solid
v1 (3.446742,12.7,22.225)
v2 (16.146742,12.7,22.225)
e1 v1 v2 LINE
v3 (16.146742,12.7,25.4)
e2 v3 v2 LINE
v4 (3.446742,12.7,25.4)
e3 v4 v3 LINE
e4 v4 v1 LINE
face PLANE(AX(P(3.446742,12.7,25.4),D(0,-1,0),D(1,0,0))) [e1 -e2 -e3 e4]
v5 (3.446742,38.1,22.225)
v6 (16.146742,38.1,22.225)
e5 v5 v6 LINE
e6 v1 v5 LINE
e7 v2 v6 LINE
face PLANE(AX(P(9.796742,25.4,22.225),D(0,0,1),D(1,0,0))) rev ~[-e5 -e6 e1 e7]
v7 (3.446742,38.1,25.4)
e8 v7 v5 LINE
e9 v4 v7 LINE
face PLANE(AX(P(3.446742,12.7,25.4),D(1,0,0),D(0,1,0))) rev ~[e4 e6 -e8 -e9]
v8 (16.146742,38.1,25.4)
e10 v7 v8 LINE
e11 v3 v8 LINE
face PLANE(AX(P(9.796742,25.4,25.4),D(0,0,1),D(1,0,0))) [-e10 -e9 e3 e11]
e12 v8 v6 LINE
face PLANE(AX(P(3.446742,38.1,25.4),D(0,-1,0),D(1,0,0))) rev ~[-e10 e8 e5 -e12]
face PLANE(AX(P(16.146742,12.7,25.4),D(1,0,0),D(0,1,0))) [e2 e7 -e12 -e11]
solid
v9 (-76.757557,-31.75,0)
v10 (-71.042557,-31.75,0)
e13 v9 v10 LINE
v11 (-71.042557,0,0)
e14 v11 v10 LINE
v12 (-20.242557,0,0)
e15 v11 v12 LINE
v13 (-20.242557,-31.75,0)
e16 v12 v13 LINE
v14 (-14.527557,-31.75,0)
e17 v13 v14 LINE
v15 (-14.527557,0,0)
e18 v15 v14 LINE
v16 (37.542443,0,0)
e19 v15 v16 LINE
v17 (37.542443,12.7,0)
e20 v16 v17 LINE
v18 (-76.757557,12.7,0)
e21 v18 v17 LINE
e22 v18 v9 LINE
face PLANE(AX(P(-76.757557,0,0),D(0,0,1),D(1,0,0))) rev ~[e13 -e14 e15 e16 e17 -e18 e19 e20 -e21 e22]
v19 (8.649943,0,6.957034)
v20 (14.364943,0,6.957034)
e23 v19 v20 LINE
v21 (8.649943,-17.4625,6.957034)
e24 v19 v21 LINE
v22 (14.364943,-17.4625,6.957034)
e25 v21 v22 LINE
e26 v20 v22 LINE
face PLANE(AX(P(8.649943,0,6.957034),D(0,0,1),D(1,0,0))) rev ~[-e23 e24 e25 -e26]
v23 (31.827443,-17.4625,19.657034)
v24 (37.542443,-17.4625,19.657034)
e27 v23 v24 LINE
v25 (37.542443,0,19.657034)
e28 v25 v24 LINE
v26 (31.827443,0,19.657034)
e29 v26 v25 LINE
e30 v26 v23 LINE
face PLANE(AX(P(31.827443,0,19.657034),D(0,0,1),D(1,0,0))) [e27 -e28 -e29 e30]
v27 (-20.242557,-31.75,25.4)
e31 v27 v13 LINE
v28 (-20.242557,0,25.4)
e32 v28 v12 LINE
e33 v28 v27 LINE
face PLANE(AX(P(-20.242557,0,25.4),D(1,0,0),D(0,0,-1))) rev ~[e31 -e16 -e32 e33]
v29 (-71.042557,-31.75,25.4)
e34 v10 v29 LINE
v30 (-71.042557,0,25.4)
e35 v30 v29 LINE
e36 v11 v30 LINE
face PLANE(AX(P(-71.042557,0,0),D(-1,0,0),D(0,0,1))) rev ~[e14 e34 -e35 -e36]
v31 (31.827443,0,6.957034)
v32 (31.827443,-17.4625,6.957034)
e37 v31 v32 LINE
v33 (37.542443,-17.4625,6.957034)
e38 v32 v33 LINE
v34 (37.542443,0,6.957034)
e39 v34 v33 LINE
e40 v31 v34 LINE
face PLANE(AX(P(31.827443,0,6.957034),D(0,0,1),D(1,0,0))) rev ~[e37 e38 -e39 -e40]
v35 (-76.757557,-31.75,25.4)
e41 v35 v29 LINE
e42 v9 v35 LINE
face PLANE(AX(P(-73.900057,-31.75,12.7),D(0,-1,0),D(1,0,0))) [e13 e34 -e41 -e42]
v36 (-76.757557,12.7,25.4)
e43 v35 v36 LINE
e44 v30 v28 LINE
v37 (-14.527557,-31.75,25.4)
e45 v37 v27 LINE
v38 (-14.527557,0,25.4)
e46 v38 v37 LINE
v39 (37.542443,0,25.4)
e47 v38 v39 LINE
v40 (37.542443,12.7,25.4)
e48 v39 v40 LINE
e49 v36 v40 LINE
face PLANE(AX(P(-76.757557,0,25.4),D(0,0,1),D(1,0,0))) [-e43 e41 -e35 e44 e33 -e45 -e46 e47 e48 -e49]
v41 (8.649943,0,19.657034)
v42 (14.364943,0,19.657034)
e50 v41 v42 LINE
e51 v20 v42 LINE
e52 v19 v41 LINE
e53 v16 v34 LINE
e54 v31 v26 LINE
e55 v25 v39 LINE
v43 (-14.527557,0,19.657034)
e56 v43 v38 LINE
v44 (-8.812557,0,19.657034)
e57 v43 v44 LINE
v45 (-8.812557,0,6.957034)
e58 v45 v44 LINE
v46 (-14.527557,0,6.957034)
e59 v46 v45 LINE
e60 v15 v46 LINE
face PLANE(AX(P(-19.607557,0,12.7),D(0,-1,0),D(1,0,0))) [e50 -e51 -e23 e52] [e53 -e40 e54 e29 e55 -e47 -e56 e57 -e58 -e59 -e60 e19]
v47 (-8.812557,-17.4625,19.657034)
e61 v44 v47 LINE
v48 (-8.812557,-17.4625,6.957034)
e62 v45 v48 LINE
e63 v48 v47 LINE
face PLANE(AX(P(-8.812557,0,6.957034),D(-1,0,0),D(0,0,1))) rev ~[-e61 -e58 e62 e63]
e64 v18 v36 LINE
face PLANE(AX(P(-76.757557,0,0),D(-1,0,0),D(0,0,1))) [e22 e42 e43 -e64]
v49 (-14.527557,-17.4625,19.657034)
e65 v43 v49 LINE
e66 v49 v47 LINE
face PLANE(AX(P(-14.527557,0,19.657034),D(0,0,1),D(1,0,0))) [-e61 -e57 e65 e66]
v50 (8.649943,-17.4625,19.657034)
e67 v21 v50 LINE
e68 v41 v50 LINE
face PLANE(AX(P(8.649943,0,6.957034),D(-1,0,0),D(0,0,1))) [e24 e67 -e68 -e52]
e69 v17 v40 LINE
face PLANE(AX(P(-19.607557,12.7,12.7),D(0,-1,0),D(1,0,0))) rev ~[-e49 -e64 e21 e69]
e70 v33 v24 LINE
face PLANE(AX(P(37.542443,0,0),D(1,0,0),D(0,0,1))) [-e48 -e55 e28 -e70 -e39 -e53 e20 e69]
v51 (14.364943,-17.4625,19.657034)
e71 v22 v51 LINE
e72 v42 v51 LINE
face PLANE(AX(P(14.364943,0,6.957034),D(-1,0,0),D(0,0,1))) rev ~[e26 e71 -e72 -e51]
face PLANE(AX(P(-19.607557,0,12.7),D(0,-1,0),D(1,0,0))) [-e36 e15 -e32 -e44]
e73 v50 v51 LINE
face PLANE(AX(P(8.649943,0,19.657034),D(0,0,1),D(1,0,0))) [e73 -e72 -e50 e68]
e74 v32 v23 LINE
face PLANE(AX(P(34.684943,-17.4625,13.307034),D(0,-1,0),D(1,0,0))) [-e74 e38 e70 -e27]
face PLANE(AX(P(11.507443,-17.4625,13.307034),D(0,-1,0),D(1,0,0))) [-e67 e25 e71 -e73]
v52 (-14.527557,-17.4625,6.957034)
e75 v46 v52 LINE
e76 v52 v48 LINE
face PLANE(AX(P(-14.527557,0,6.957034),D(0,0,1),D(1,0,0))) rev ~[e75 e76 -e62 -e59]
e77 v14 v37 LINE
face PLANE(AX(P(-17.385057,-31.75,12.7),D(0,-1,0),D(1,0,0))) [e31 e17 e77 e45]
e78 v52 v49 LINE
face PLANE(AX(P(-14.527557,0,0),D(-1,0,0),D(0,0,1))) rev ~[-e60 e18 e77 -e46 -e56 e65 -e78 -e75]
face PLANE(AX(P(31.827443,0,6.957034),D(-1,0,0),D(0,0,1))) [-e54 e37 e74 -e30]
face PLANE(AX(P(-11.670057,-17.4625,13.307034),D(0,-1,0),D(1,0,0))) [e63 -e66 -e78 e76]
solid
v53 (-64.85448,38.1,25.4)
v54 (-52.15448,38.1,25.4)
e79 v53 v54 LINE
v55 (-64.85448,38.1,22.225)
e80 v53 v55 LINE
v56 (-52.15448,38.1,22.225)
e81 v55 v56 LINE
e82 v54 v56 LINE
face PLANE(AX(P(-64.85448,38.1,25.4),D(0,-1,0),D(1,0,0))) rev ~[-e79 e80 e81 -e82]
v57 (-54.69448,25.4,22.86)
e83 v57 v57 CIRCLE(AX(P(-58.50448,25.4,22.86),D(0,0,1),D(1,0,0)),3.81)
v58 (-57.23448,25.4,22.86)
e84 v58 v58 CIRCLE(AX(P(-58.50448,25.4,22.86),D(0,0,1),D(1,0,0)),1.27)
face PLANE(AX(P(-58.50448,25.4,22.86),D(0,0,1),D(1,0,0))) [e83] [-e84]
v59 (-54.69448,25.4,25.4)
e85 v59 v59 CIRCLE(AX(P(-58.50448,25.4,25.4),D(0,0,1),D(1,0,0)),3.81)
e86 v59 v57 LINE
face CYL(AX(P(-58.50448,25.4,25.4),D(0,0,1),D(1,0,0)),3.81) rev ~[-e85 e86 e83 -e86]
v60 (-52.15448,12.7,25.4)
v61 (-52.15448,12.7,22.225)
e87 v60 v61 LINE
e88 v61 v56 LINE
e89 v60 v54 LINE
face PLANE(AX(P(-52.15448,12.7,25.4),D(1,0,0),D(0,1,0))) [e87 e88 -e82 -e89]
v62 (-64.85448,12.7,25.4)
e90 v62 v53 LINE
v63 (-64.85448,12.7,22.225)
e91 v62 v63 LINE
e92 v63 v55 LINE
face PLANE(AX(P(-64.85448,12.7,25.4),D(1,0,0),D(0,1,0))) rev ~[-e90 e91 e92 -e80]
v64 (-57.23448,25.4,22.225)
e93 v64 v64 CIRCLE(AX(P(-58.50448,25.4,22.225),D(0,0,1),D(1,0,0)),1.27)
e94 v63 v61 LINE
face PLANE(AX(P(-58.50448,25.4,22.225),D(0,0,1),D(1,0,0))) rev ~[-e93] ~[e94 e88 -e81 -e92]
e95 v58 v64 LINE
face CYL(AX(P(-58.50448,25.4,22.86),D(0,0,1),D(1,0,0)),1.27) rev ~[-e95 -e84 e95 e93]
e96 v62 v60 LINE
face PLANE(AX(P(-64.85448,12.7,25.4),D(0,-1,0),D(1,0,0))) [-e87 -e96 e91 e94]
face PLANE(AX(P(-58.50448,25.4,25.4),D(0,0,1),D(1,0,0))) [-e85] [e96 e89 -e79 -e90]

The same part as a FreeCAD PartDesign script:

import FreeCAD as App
import Part
import Sketcher

V = App.Vector
Q = App.Units.Quantity

doc = App.newDocument("Part")
body = doc.addObject("PartDesign::Body", "Body")

# Sketch on XZ plane
sketch1 = body.newObject("Sketcher::SketchObject", "Sketch")
sketch1.AttachmentSupport = (doc.getObject("XZ_Plane"), [""])
sketch1.MapMode = "FlatFace"
sketch1.addGeometry(Part.LineSegment(V(-77, 25, 0), V(-77, 0, 0)), False)
sketch1.addGeometry(Part.LineSegment(V(-77, 0, 0), V(38, 0, 0)), False)
sketch1.addGeometry(Part.LineSegment(V(38, 0, 0), V(38, 25, 0)), False)
sketch1.addGeometry(Part.LineSegment(V(38, 25, 0), V(-77, 25, 0)), False)
sketch1.addConstraint(Sketcher.Constraint("Coincident", 0, 2, 1, 1))
sketch1.addConstraint(Sketcher.Constraint("Coincident", 1, 2, 2, 1))
sketch1.addConstraint(Sketcher.Constraint("Coincident", 2, 2, 3, 1))
sketch1.addConstraint(Sketcher.Constraint("Coincident", 3, 2, 0, 1))
sketch1.addConstraint(Sketcher.Constraint("Vertical", 0))
sketch1.addConstraint(Sketcher.Constraint("Horizontal", 1))
sketch1.addConstraint(Sketcher.Constraint("Vertical", 2))
sketch1.addConstraint(Sketcher.Constraint("Horizontal", 3))
sketch1.addConstraint(Sketcher.Constraint("PointOnObject", 0, 2, -1))
sketch1.addConstraint(Sketcher.Constraint("DistanceY", 0, 2, 0, 1, Q("1 in")))
sketch1.addConstraint(Sketcher.Constraint("DistanceX", 1, 1, 1, 2, Q("4.5 in")))
sketch1.addConstraint(Sketcher.Constraint("DistanceX", 0, 2, -1, 1, 76.757557))
pad1 = body.newObject("PartDesign::Pad", "Pad")
pad1.Profile = sketch1
pad1.Length = Q("0.5 in")
pad1.Reversed = True

# Sketch on XZ plane
sketch2 = body.newObject("Sketcher::SketchObject", "Sketch001")
sketch2.AttachmentSupport = (doc.getObject("XZ_Plane"), [""])
sketch2.MapMode = "FlatFace"
sketch2.addGeometry(Part.LineSegment(V(-77, 25, 0), V(-77, 0, 0)), False)
sketch2.addGeometry(Part.LineSegment(V(-77, 0, 0), V(-71, 0, 0)), False)
sketch2.addGeometry(Part.LineSegment(V(-71, 0, 0), V(-71, 25, 0)), False)
sketch2.addGeometry(Part.LineSegment(V(-71, 25, 0), V(-77, 25, 0)), False)
sketch2.addGeometry(Part.LineSegment(V(-15, 25, 0), V(-20, 25, 0)), False)
sketch2.addGeometry(Part.LineSegment(V(-20, 25, 0), V(-20, 0, 0)), False)
sketch2.addGeometry(Part.LineSegment(V(-20, 0, 0), V(-15, 0, 0)), False)
sketch2.addGeometry(Part.LineSegment(V(-15, 0, 0), V(-15, 25, 0)), False)
sketch2.addConstraint(Sketcher.Constraint("Coincident", 0, 2, 1, 1))
sketch2.addConstraint(Sketcher.Constraint("Coincident", 1, 2, 2, 1))
sketch2.addConstraint(Sketcher.Constraint("Coincident", 2, 2, 3, 1))
sketch2.addConstraint(Sketcher.Constraint("Coincident", 3, 2, 0, 1))
sketch2.addConstraint(Sketcher.Constraint("Coincident", 4, 2, 5, 1))
sketch2.addConstraint(Sketcher.Constraint("Coincident", 5, 2, 6, 1))
sketch2.addConstraint(Sketcher.Constraint("Coincident", 6, 2, 7, 1))
sketch2.addConstraint(Sketcher.Constraint("Coincident", 7, 2, 4, 1))
sketch2.addConstraint(Sketcher.Constraint("Vertical", 0))
sketch2.addConstraint(Sketcher.Constraint("Horizontal", 1))
sketch2.addConstraint(Sketcher.Constraint("Vertical", 2))
sketch2.addConstraint(Sketcher.Constraint("Horizontal", 3))
sketch2.addConstraint(Sketcher.Constraint("Horizontal", 4))
sketch2.addConstraint(Sketcher.Constraint("Vertical", 5))
sketch2.addConstraint(Sketcher.Constraint("Horizontal", 6))
sketch2.addConstraint(Sketcher.Constraint("Vertical", 7))
sketch2.addConstraint(Sketcher.Constraint("PointOnObject", 0, 2, -1))
sketch2.addConstraint(Sketcher.Constraint("PointOnObject", 5, 2, -1))
sketch2.addConstraint(Sketcher.Constraint("Horizontal", 3, 2, 4, 2))
sketch2.addConstraint(Sketcher.Constraint("Equal", 3, 4))
sketch2.addConstraint(Sketcher.Constraint("DistanceY", 0, 2, 0, 1, Q("1 in")))
sketch2.addConstraint(Sketcher.Constraint("DistanceX", 2, 2, 4, 2, Q("2 in")))
sketch2.addConstraint(Sketcher.Constraint("DistanceX", 1, 1, 1, 2, Q("0.225 in")))
sketch2.addConstraint(Sketcher.Constraint("DistanceX", 0, 2, -1, 1, 76.757557))
pad2 = body.newObject("PartDesign::Pad", "Pad001")
pad2.Profile = sketch2
pad2.Length = Q("1.25 in")

# Sketch on XZ plane
sketch3 = body.newObject("Sketcher::SketchObject", "Sketch002")
sketch3.AttachmentSupport = (doc.getObject("XZ_Plane"), [""])
sketch3.MapMode = "FlatFace"
sketch3.addGeometry(Part.LineSegment(V(-15, 20, 0), V(-15, 7, 0)), False)
sketch3.addGeometry(Part.LineSegment(V(-15, 7, 0), V(-9, 7, 0)), False)
sketch3.addGeometry(Part.LineSegment(V(-9, 7, 0), V(-9, 20, 0)), False)
sketch3.addGeometry(Part.LineSegment(V(-9, 20, 0), V(-15, 20, 0)), False)
sketch3.addGeometry(Part.LineSegment(V(9, 20, 0), V(9, 7, 0)), False)
sketch3.addGeometry(Part.LineSegment(V(9, 7, 0), V(14, 7, 0)), False)
sketch3.addGeometry(Part.LineSegment(V(14, 7, 0), V(14, 20, 0)), False)
sketch3.addGeometry(Part.LineSegment(V(14, 20, 0), V(9, 20, 0)), False)
sketch3.addGeometry(Part.LineSegment(V(32, 20, 0), V(32, 7, 0)), False)
sketch3.addGeometry(Part.LineSegment(V(32, 7, 0), V(38, 7, 0)), False)
sketch3.addGeometry(Part.LineSegment(V(38, 7, 0), V(38, 20, 0)), False)
sketch3.addGeometry(Part.LineSegment(V(38, 20, 0), V(32, 20, 0)), False)
sketch3.addConstraint(Sketcher.Constraint("Coincident", 0, 2, 1, 1))
sketch3.addConstraint(Sketcher.Constraint("Coincident", 1, 2, 2, 1))
sketch3.addConstraint(Sketcher.Constraint("Coincident", 2, 2, 3, 1))
sketch3.addConstraint(Sketcher.Constraint("Coincident", 3, 2, 0, 1))
sketch3.addConstraint(Sketcher.Constraint("Coincident", 4, 2, 5, 1))
sketch3.addConstraint(Sketcher.Constraint("Coincident", 5, 2, 6, 1))
sketch3.addConstraint(Sketcher.Constraint("Coincident", 6, 2, 7, 1))
sketch3.addConstraint(Sketcher.Constraint("Coincident", 7, 2, 4, 1))
sketch3.addConstraint(Sketcher.Constraint("Coincident", 8, 2, 9, 1))
sketch3.addConstraint(Sketcher.Constraint("Coincident", 9, 2, 10, 1))
sketch3.addConstraint(Sketcher.Constraint("Coincident", 10, 2, 11, 1))
sketch3.addConstraint(Sketcher.Constraint("Coincident", 11, 2, 8, 1))
sketch3.addConstraint(Sketcher.Constraint("Vertical", 0))
sketch3.addConstraint(Sketcher.Constraint("Horizontal", 1))
sketch3.addConstraint(Sketcher.Constraint("Vertical", 2))
sketch3.addConstraint(Sketcher.Constraint("Horizontal", 3))
sketch3.addConstraint(Sketcher.Constraint("Vertical", 4))
sketch3.addConstraint(Sketcher.Constraint("Horizontal", 5))
sketch3.addConstraint(Sketcher.Constraint("Vertical", 6))
sketch3.addConstraint(Sketcher.Constraint("Horizontal", 7))
sketch3.addConstraint(Sketcher.Constraint("Vertical", 8))
sketch3.addConstraint(Sketcher.Constraint("Horizontal", 9))
sketch3.addConstraint(Sketcher.Constraint("Vertical", 10))
sketch3.addConstraint(Sketcher.Constraint("Horizontal", 11))
sketch3.addConstraint(Sketcher.Constraint("Horizontal", 1, 2, 4, 2))
sketch3.addConstraint(Sketcher.Constraint("Horizontal", 3, 2, 6, 2))
sketch3.addConstraint(Sketcher.Constraint("Horizontal", 5, 2, 8, 2))
sketch3.addConstraint(Sketcher.Constraint("Horizontal", 7, 2, 10, 2))
sketch3.addConstraint(Sketcher.Constraint("Equal", 3, 5))
sketch3.addConstraint(Sketcher.Constraint("Equal", 7, 9))
sketch3.addConstraint(Sketcher.Constraint("DistanceY", 0, 2, 0, 1, Q("0.5 in")))
sketch3.addConstraint(Sketcher.Constraint("DistanceX", 1, 2, 8, 2, Q("1.6 in")))
sketch3.addConstraint(Sketcher.Constraint("DistanceX", 1, 1, 1, 2, Q("0.225 in")))
sketch3.addConstraint(Sketcher.Constraint("DistanceX", 1, 2, 4, 2, Q("0.6875 in")))
sketch3.addConstraint(Sketcher.Constraint("DistanceX", 0, 2, -1, 1, 14.527557))
sketch3.addConstraint(Sketcher.Constraint("DistanceY", -1, 1, 0, 2, 6.957034))
pad3 = body.newObject("PartDesign::Pad", "Pad002")
pad3.Profile = sketch3
pad3.Length = Q("0.6875 in")
body2 = doc.addObject("PartDesign::Body", "Body001")
body2.AllowCompound = True

# Sketch on XY plane
sketch4 = body2.newObject("Sketcher::SketchObject", "Sketch003")
sketch4.AttachmentSupport = (doc.getObject("XY_Plane001"), [""])
sketch4.MapMode = "FlatFace"
sketch4.AttachmentOffset = App.Placement(V(0, 0, 1 * 25.4), App.Rotation())
sketch4.addGeometry(Part.LineSegment(V(-65, 38, 0), V(-65, 13, 0)), False)
sketch4.addGeometry(Part.LineSegment(V(-65, 13, 0), V(-52, 13, 0)), False)
sketch4.addGeometry(Part.LineSegment(V(-52, 13, 0), V(-52, 38, 0)), False)
sketch4.addGeometry(Part.LineSegment(V(-52, 38, 0), V(-65, 38, 0)), False)
sketch4.addGeometry(Part.LineSegment(V(3, 38, 0), V(3, 13, 0)), False)
sketch4.addGeometry(Part.LineSegment(V(3, 13, 0), V(16, 13, 0)), False)
sketch4.addGeometry(Part.LineSegment(V(16, 13, 0), V(16, 38, 0)), False)
sketch4.addGeometry(Part.LineSegment(V(16, 38, 0), V(3, 38, 0)), False)
sketch4.addConstraint(Sketcher.Constraint("Coincident", 0, 2, 1, 1))
sketch4.addConstraint(Sketcher.Constraint("Coincident", 1, 2, 2, 1))
sketch4.addConstraint(Sketcher.Constraint("Coincident", 2, 2, 3, 1))
sketch4.addConstraint(Sketcher.Constraint("Coincident", 3, 2, 0, 1))
sketch4.addConstraint(Sketcher.Constraint("Coincident", 4, 2, 5, 1))
sketch4.addConstraint(Sketcher.Constraint("Coincident", 5, 2, 6, 1))
sketch4.addConstraint(Sketcher.Constraint("Coincident", 6, 2, 7, 1))
sketch4.addConstraint(Sketcher.Constraint("Coincident", 7, 2, 4, 1))
sketch4.addConstraint(Sketcher.Constraint("Vertical", 0))
sketch4.addConstraint(Sketcher.Constraint("Horizontal", 1))
sketch4.addConstraint(Sketcher.Constraint("Vertical", 2))
sketch4.addConstraint(Sketcher.Constraint("Horizontal", 3))
sketch4.addConstraint(Sketcher.Constraint("Vertical", 4))
sketch4.addConstraint(Sketcher.Constraint("Horizontal", 5))
sketch4.addConstraint(Sketcher.Constraint("Vertical", 6))
sketch4.addConstraint(Sketcher.Constraint("Horizontal", 7))
sketch4.addConstraint(Sketcher.Constraint("Horizontal", 1, 2, 4, 2))
sketch4.addConstraint(Sketcher.Constraint("Horizontal", 3, 2, 6, 2))
sketch4.addConstraint(Sketcher.Constraint("Equal", 3, 5))
sketch4.addConstraint(Sketcher.Constraint("DistanceY", 0, 2, 0, 1, Q("1 in")))
sketch4.addConstraint(Sketcher.Constraint("DistanceX", 1, 1, 1, 2, Q("0.5 in")))
sketch4.addConstraint(Sketcher.Constraint("DistanceY", -1, 1, 0, 2, Q("0.5 in")))
sketch4.addConstraint(Sketcher.Constraint("DistanceX", 0, 2, -1, 1, 64.85448))
sketch4.addConstraint(Sketcher.Constraint("DistanceX", -1, 1, 4, 2, 3.446742))
pad4 = body2.newObject("PartDesign::Pad", "Pad003")
pad4.Profile = sketch4
pad4.Length = Q("0.125 in")
pad4.Reversed = True

# Sketch on XY plane
sketch5 = body2.newObject("Sketcher::SketchObject", "Sketch004")
sketch5.AttachmentSupport = (doc.getObject("XY_Plane001"), [""])
sketch5.MapMode = "FlatFace"
sketch5.AttachmentOffset = App.Placement(V(0, 0, 1 * 25.4), App.Rotation())
sketch5.addGeometry(Part.Circle(V(-58.5, 25.4, 0), V(0, 0, 1), 3.8), False)
sketch5.addConstraint(Sketcher.Constraint("Diameter", 0, Q("0.3 in")))
sketch5.addConstraint(Sketcher.Constraint("DistanceY", -1, 1, 0, 3, Q("1 in")))
sketch5.addConstraint(Sketcher.Constraint("DistanceX", 0, 3, -1, 1, 58.50448))
pocket1 = body2.newObject("PartDesign::Pocket", "Pocket")
pocket1.Profile = sketch5
pocket1.Length = Q("0.1 in")

# Sketch on XY plane
sketch6 = body2.newObject("Sketcher::SketchObject", "Sketch005")
sketch6.AttachmentSupport = (doc.getObject("XY_Plane001"), [""])
sketch6.MapMode = "FlatFace"
sketch6.AttachmentOffset = App.Placement(V(0, 0, 0.9 * 25.4), App.Rotation())
sketch6.addGeometry(Part.Circle(V(-58.5, 25.4, 0), V(0, 0, 1), 1.3), False)
sketch6.addConstraint(Sketcher.Constraint("Diameter", 0, Q("0.1 in")))
sketch6.addConstraint(Sketcher.Constraint("DistanceY", -1, 1, 0, 3, Q("1 in")))
sketch6.addConstraint(Sketcher.Constraint("DistanceX", 0, 3, -1, 1, 58.50448))
pocket2 = body2.newObject("PartDesign::Pocket", "Pocket001")
pocket2.Profile = sketch6
pocket2.Type = "ThroughAll"

doc.recompute()
